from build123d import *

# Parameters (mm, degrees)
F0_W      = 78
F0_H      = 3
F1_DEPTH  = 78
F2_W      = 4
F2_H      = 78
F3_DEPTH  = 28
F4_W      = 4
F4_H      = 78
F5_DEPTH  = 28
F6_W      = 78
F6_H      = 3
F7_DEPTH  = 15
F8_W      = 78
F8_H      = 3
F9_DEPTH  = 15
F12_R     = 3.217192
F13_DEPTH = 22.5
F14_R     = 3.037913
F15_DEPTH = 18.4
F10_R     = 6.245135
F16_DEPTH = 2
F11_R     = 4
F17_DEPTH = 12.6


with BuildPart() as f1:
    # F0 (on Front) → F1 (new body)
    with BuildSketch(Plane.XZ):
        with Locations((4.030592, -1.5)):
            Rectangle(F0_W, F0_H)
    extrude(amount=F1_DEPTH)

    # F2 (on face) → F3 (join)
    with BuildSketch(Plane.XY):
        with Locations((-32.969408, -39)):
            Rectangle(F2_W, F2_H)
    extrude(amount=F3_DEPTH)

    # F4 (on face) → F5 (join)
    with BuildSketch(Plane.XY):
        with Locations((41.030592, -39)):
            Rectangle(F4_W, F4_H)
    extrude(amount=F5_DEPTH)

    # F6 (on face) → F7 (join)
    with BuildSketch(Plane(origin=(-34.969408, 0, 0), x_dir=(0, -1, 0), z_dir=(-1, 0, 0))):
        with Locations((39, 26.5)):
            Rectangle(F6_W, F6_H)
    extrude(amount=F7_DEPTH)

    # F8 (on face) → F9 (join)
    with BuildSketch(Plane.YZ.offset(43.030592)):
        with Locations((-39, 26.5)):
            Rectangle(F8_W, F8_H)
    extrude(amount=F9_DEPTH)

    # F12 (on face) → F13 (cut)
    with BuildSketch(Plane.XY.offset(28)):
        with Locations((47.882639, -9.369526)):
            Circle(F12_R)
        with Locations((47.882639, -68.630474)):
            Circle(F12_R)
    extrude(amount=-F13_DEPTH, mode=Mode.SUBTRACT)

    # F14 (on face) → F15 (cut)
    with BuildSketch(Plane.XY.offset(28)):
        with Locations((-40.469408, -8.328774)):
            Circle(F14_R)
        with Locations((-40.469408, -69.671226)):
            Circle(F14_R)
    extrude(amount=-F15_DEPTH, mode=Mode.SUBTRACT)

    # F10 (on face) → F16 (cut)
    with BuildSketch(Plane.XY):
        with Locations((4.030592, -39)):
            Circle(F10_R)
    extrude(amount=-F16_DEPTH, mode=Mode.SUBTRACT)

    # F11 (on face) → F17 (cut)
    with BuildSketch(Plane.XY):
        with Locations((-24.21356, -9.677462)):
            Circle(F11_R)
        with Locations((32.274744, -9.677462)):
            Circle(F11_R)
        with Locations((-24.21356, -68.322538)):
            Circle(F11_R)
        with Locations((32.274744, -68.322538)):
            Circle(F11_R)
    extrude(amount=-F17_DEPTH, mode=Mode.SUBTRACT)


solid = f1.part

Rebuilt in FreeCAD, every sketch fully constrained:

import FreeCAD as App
import Part
import Sketcher
Q = App.Units.Quantity

doc = App.newDocument("Part")
body = doc.addObject("PartDesign::Body", "Body")

sketch1 = doc.addObject("Sketcher::SketchObject", "Sketch")
body.addObject(sketch1)
sketch1.AttachmentSupport = (doc.XZ_Plane, [""])
sketch1.MapMode = "FlatFace"
sketch1.addGeometry(Part.LineSegment(App.Vector(-35, 0, 0), App.Vector(-35, -3, 0)), False)
sketch1.addGeometry(Part.LineSegment(App.Vector(-35, -3, 0), App.Vector(43, -3, 0)), False)
sketch1.addGeometry(Part.LineSegment(App.Vector(43, -3, 0), App.Vector(43, 0, 0)), False)
sketch1.addGeometry(Part.LineSegment(App.Vector(43, 0, 0), App.Vector(-35, 0, 0)), False)
sketch1.addConstraint(Sketcher.Constraint("Coincident", 0, 2, 1, 1))
sketch1.addConstraint(Sketcher.Constraint("Coincident", 1, 2, 2, 1))
sketch1.addConstraint(Sketcher.Constraint("Coincident", 2, 2, 3, 1))
sketch1.addConstraint(Sketcher.Constraint("Coincident", 3, 2, 0, 1))
sketch1.addConstraint(Sketcher.Constraint("Vertical", 0))
sketch1.addConstraint(Sketcher.Constraint("Horizontal", 1))
sketch1.addConstraint(Sketcher.Constraint("Vertical", 2))
sketch1.addConstraint(Sketcher.Constraint("Horizontal", 3))
sketch1.addConstraint(Sketcher.Constraint("PointOnObject", 2, 2, -1))
sketch1.addConstraint(Sketcher.Constraint("DistanceX", 1, 1, 1, 2, Q("78 mm")))
sketch1.addConstraint(Sketcher.Constraint("DistanceY", 0, 2, 0, 1, Q("3 mm")))
sketch1.addConstraint(Sketcher.Constraint("DistanceX", 0, 2, -1, 1, Q("34.969408 mm")))
pad1 = doc.addObject("PartDesign::Pad", "Pad")
body.addObject(pad1)
pad1.Profile = sketch1
pad1.Length = 78

sketch2 = doc.addObject("Sketcher::SketchObject", "Sketch001")
body.addObject(sketch2)
sketch2.AttachmentSupport = (doc.XY_Plane, [""])
sketch2.MapMode = "FlatFace"
sketch2.addGeometry(Part.LineSegment(App.Vector(-35, 0, 0), App.Vector(-35, -78, 0)), False)
sketch2.addGeometry(Part.LineSegment(App.Vector(-35, -78, 0), App.Vector(-31, -78, 0)), False)
sketch2.addGeometry(Part.LineSegment(App.Vector(-31, -78, 0), App.Vector(-31, 0, 0)), False)
sketch2.addGeometry(Part.LineSegment(App.Vector(-31, 0, 0), App.Vector(-35, 0, 0)), False)
sketch2.addConstraint(Sketcher.Constraint("Coincident", 0, 2, 1, 1))
sketch2.addConstraint(Sketcher.Constraint("Coincident", 1, 2, 2, 1))
sketch2.addConstraint(Sketcher.Constraint("Coincident", 2, 2, 3, 1))
sketch2.addConstraint(Sketcher.Constraint("Coincident", 3, 2, 0, 1))
sketch2.addConstraint(Sketcher.Constraint("Vertical", 0))
sketch2.addConstraint(Sketcher.Constraint("Horizontal", 1))
sketch2.addConstraint(Sketcher.Constraint("Vertical", 2))
sketch2.addConstraint(Sketcher.Constraint("Horizontal", 3))
sketch2.addConstraint(Sketcher.Constraint("PointOnObject", 2, 2, -1))
sketch2.addConstraint(Sketcher.Constraint("DistanceX", 1, 1, 1, 2, Q("4 mm")))
sketch2.addConstraint(Sketcher.Constraint("DistanceY", 0, 2, 0, 1, Q("78 mm")))
sketch2.addConstraint(Sketcher.Constraint("DistanceX", 1, 2, -1, 1, Q("30.969408 mm")))
pad2 = doc.addObject("PartDesign::Pad", "Pad001")
body.addObject(pad2)
pad2.Profile = sketch2
pad2.Length = 28

sketch3 = doc.addObject("Sketcher::SketchObject", "Sketch002")
body.addObject(sketch3)
sketch3.AttachmentSupport = (doc.XY_Plane, [""])
sketch3.MapMode = "FlatFace"
sketch3.addGeometry(Part.LineSegment(App.Vector(39, 0, 0), App.Vector(39, -78, 0)), False)
sketch3.addGeometry(Part.LineSegment(App.Vector(39, -78, 0), App.Vector(43, -78, 0)), False)
sketch3.addGeometry(Part.LineSegment(App.Vector(43, -78, 0), App.Vector(43, 0, 0)), False)
sketch3.addGeometry(Part.LineSegment(App.Vector(43, 0, 0), App.Vector(39, 0, 0)), False)
sketch3.addConstraint(Sketcher.Constraint("Coincident", 0, 2, 1, 1))
sketch3.addConstraint(Sketcher.Constraint("Coincident", 1, 2, 2, 1))
sketch3.addConstraint(Sketcher.Constraint("Coincident", 2, 2, 3, 1))
sketch3.addConstraint(Sketcher.Constraint("Coincident", 3, 2, 0, 1))
sketch3.addConstraint(Sketcher.Constraint("Vertical", 0))
sketch3.addConstraint(Sketcher.Constraint("Horizontal", 1))
sketch3.addConstraint(Sketcher.Constraint("Vertical", 2))
sketch3.addConstraint(Sketcher.Constraint("Horizontal", 3))
sketch3.addConstraint(Sketcher.Constraint("PointOnObject", 2, 2, -1))
sketch3.addConstraint(Sketcher.Constraint("DistanceX", 1, 1, 1, 2, Q("4 mm")))
sketch3.addConstraint(Sketcher.Constraint("DistanceY", 0, 2, 0, 1, Q("78 mm")))
sketch3.addConstraint(Sketcher.Constraint("DistanceX", -1, 1, 0, 2, Q("39.030592 mm")))
pad3 = doc.addObject("PartDesign::Pad", "Pad002")
body.addObject(pad3)
pad3.Profile = sketch3
pad3.Length = 28

sketch4 = doc.addObject("Sketcher::SketchObject", "Sketch003")
body.addObject(sketch4)
sketch4.AttachmentSupport = (doc.YZ_Plane, [""])
sketch4.MapMode = "FlatFace"
sketch4.AttachmentOffset = App.Placement(App.Vector(0, 0, -34.969408), App.Rotation())
sketch4.addGeometry(Part.LineSegment(App.Vector(0, 28, 0), App.Vector(0, 25, 0)), False)
sketch4.addGeometry(Part.LineSegment(App.Vector(0, 25, 0), App.Vector(-78, 25, 0)), False)
sketch4.addGeometry(Part.LineSegment(App.Vector(-78, 25, 0), App.Vector(-78, 28, 0)), False)
sketch4.addGeometry(Part.LineSegment(App.Vector(-78, 28, 0), App.Vector(0, 28, 0)), False)
sketch4.addConstraint(Sketcher.Constraint("Coincident", 0, 2, 1, 1))
sketch4.addConstraint(Sketcher.Constraint("Coincident", 1, 2, 2, 1))
sketch4.addConstraint(Sketcher.Constraint("Coincident", 2, 2, 3, 1))
sketch4.addConstraint(Sketcher.Constraint("Coincident", 3, 2, 0, 1))
sketch4.addConstraint(Sketcher.Constraint("Vertical", 0))
sketch4.addConstraint(Sketcher.Constraint("Horizontal", 1))
sketch4.addConstraint(Sketcher.Constraint("Vertical", 2))
sketch4.addConstraint(Sketcher.Constraint("Horizontal", 3))
sketch4.addConstraint(Sketcher.Constraint("PointOnObject", 0, 2, -2))
sketch4.addConstraint(Sketcher.Constraint("DistanceX", 1, 2, 1, 1, Q("78 mm")))
sketch4.addConstraint(Sketcher.Constraint("DistanceY", 0, 2, 0, 1, Q("3 mm")))
sketch4.addConstraint(Sketcher.Constraint("DistanceY", -1, 1, 0, 2, Q("25 mm")))
pad4 = doc.addObject("PartDesign::Pad", "Pad003")
body.addObject(pad4)
pad4.Profile = sketch4
pad4.Length = 15
pad4.Reversed = True

sketch5 = doc.addObject("Sketcher::SketchObject", "Sketch004")
body.addObject(sketch5)
sketch5.AttachmentSupport = (doc.YZ_Plane, [""])
sketch5.MapMode = "FlatFace"
sketch5.AttachmentOffset = App.Placement(App.Vector(0, 0, 43.030592), App.Rotation())
sketch5.addGeometry(Part.LineSegment(App.Vector(-78, 28, 0), App.Vector(-78, 25, 0)), False)
sketch5.addGeometry(Part.LineSegment(App.Vector(-78, 25, 0), App.Vector(0, 25, 0)), False)
sketch5.addGeometry(Part.LineSegment(App.Vector(0, 25, 0), App.Vector(0, 28, 0)), False)
sketch5.addGeometry(Part.LineSegment(App.Vector(0, 28, 0), App.Vector(-78, 28, 0)), False)
sketch5.addConstraint(Sketcher.Constraint("Coincident", 0, 2, 1, 1))
sketch5.addConstraint(Sketcher.Constraint("Coincident", 1, 2, 2, 1))
sketch5.addConstraint(Sketcher.Constraint("Coincident", 2, 2, 3, 1))
sketch5.addConstraint(Sketcher.Constraint("Coincident", 3, 2, 0, 1))
sketch5.addConstraint(Sketcher.Constraint("Vertical", 0))
sketch5.addConstraint(Sketcher.Constraint("Horizontal", 1))
sketch5.addConstraint(Sketcher.Constraint("Vertical", 2))
sketch5.addConstraint(Sketcher.Constraint("Horizontal", 3))
sketch5.addConstraint(Sketcher.Constraint("PointOnObject", 1, 2, -2))
sketch5.addConstraint(Sketcher.Constraint("DistanceX", 1, 1, 1, 2, Q("78 mm")))
sketch5.addConstraint(Sketcher.Constraint("DistanceY", 0, 2, 0, 1, Q("3 mm")))
sketch5.addConstraint(Sketcher.Constraint("DistanceY", -1, 1, 0, 2, Q("25 mm")))
pad5 = doc.addObject("PartDesign::Pad", "Pad004")
body.addObject(pad5)
pad5.Profile = sketch5
pad5.Length = 15

sketch6 = doc.addObject("Sketcher::SketchObject", "Sketch005")
body.addObject(sketch6)
sketch6.AttachmentSupport = (doc.XY_Plane, [""])
sketch6.MapMode = "FlatFace"
sketch6.AttachmentOffset = App.Placement(App.Vector(0, 0, 28), App.Rotation())
sketch6.addGeometry(Part.Circle(App.Vector(47.9, -9.4, 0), App.Vector(0, 0, 1), 3.2), False)
sketch6.addGeometry(Part.Circle(App.Vector(47.9, -68.6, 0), App.Vector(0, 0, 1), 3.2), False)
sketch6.addConstraint(Sketcher.Constraint("Equal", 0, 1))
sketch6.addConstraint(Sketcher.Constraint("Vertical", 0, 3, 1, 3))
sketch6.addConstraint(Sketcher.Constraint("Diameter", 0, Q("6.434384 mm")))
sketch6.addConstraint(Sketcher.Constraint("DistanceX", -1, 1, 0, 3, Q("47.882639 mm")))
sketch6.addConstraint(Sketcher.Constraint("DistanceY", 1, 3, 0, 3, Q("59.260948 mm")))
sketch6.addConstraint(Sketcher.Constraint("DistanceY", 0, 3, -1, 1, Q("9.369526 mm")))
pocket1 = doc.addObject("PartDesign::Pocket", "Pocket")
body.addObject(pocket1)
pocket1.Profile = sketch6
pocket1.Length = 22.5

sketch7 = doc.addObject("Sketcher::SketchObject", "Sketch006")
body.addObject(sketch7)
sketch7.AttachmentSupport = (doc.XY_Plane, [""])
sketch7.MapMode = "FlatFace"
sketch7.AttachmentOffset = App.Placement(App.Vector(0, 0, 28), App.Rotation())
sketch7.addGeometry(Part.Circle(App.Vector(-40.5, -8.3, 0), App.Vector(0, 0, 1), 3), False)
sketch7.addGeometry(Part.Circle(App.Vector(-40.5, -69.7, 0), App.Vector(0, 0, 1), 3), False)
sketch7.addConstraint(Sketcher.Constraint("Equal", 0, 1))
sketch7.addConstraint(Sketcher.Constraint("Vertical", 0, 3, 1, 3))
sketch7.addConstraint(Sketcher.Constraint("Diameter", 0, Q("6.075826 mm")))
sketch7.addConstraint(Sketcher.Constraint("DistanceX", 0, 3, -1, 1, Q("40.469408 mm")))
sketch7.addConstraint(Sketcher.Constraint("DistanceY", 0, 3, -1, 1, Q("8.328774 mm")))
sketch7.addConstraint(Sketcher.Constraint("DistanceY", 1, 3, -1, 1, Q("69.671226 mm")))
pocket2 = doc.addObject("PartDesign::Pocket", "Pocket001")
body.addObject(pocket2)
pocket2.Profile = sketch7
pocket2.Length = 18.4

sketch8 = doc.addObject("Sketcher::SketchObject", "Sketch007")
body.addObject(sketch8)
sketch8.AttachmentSupport = (doc.XY_Plane, [""])
sketch8.MapMode = "FlatFace"
sketch8.addGeometry(Part.Circle(App.Vector(4, -39, 0), App.Vector(0, 0, 1), 6), False)
sketch8.addConstraint(Sketcher.Constraint("DistanceY", 0, 3, -1, 1, Q("39 mm")))
sketch8.addConstraint(Sketcher.Constraint("Diameter", 0, Q("12.49027 mm")))
sketch8.addConstraint(Sketcher.Constraint("DistanceX", -1, 1, 0, 3, Q("4.030592 mm")))
pocket3 = doc.addObject("PartDesign::Pocket", "Pocket002")
body.addObject(pocket3)
pocket3.Profile = sketch8
pocket3.Length = 2

sketch9 = doc.addObject("Sketcher::SketchObject", "Sketch008")
body.addObject(sketch9)
sketch9.AttachmentSupport = (doc.XY_Plane, [""])
sketch9.MapMode = "FlatFace"
sketch9.addGeometry(Part.Circle(App.Vector(-24.2, -9.7, 0), App.Vector(0, 0, 1), 4), False)
sketch9.addGeometry(Part.Circle(App.Vector(32.3, -9.7, 0), App.Vector(0, 0, 1), 4), False)
sketch9.addGeometry(Part.Circle(App.Vector(-24.2, -68.3, 0), App.Vector(0, 0, 1), 4), False)
sketch9.addGeometry(Part.Circle(App.Vector(32.3, -68.3, 0), App.Vector(0, 0, 1), 4), False)
sketch9.addConstraint(Sketcher.Constraint("Equal", 0, 1))
sketch9.addConstraint(Sketcher.Constraint("Equal", 1, 2))
sketch9.addConstraint(Sketcher.Constraint("Equal", 2, 3))
sketch9.addConstraint(Sketcher.Constraint("Horizontal", 0, 3, 1, 3))
sketch9.addConstraint(Sketcher.Constraint("Horizontal", 2, 3, 3, 3))
sketch9.addConstraint(Sketcher.Constraint("Vertical", 0, 3, 2, 3))
sketch9.addConstraint(Sketcher.Constraint("Vertical", 1, 3, 3, 3))
sketch9.addConstraint(Sketcher.Constraint("Diameter", 0, Q("8 mm")))
sketch9.addConstraint(Sketcher.Constraint("DistanceX", 0, 3, -1, 1, Q("24.21356 mm")))
sketch9.addConstraint(Sketcher.Constraint("DistanceY", 0, 3, -1, 1, Q("9.677462 mm")))
sketch9.addConstraint(Sketcher.Constraint("DistanceX", -1, 1, 1, 3, Q("32.274744 mm")))
sketch9.addConstraint(Sketcher.Constraint("DistanceY", 2, 3, -1, 1, Q("68.322538 mm")))
pocket4 = doc.addObject("PartDesign::Pocket", "Pocket003")
body.addObject(pocket4)
pocket4.Profile = sketch9
pocket4.Length = 12.6

doc.recompute()
